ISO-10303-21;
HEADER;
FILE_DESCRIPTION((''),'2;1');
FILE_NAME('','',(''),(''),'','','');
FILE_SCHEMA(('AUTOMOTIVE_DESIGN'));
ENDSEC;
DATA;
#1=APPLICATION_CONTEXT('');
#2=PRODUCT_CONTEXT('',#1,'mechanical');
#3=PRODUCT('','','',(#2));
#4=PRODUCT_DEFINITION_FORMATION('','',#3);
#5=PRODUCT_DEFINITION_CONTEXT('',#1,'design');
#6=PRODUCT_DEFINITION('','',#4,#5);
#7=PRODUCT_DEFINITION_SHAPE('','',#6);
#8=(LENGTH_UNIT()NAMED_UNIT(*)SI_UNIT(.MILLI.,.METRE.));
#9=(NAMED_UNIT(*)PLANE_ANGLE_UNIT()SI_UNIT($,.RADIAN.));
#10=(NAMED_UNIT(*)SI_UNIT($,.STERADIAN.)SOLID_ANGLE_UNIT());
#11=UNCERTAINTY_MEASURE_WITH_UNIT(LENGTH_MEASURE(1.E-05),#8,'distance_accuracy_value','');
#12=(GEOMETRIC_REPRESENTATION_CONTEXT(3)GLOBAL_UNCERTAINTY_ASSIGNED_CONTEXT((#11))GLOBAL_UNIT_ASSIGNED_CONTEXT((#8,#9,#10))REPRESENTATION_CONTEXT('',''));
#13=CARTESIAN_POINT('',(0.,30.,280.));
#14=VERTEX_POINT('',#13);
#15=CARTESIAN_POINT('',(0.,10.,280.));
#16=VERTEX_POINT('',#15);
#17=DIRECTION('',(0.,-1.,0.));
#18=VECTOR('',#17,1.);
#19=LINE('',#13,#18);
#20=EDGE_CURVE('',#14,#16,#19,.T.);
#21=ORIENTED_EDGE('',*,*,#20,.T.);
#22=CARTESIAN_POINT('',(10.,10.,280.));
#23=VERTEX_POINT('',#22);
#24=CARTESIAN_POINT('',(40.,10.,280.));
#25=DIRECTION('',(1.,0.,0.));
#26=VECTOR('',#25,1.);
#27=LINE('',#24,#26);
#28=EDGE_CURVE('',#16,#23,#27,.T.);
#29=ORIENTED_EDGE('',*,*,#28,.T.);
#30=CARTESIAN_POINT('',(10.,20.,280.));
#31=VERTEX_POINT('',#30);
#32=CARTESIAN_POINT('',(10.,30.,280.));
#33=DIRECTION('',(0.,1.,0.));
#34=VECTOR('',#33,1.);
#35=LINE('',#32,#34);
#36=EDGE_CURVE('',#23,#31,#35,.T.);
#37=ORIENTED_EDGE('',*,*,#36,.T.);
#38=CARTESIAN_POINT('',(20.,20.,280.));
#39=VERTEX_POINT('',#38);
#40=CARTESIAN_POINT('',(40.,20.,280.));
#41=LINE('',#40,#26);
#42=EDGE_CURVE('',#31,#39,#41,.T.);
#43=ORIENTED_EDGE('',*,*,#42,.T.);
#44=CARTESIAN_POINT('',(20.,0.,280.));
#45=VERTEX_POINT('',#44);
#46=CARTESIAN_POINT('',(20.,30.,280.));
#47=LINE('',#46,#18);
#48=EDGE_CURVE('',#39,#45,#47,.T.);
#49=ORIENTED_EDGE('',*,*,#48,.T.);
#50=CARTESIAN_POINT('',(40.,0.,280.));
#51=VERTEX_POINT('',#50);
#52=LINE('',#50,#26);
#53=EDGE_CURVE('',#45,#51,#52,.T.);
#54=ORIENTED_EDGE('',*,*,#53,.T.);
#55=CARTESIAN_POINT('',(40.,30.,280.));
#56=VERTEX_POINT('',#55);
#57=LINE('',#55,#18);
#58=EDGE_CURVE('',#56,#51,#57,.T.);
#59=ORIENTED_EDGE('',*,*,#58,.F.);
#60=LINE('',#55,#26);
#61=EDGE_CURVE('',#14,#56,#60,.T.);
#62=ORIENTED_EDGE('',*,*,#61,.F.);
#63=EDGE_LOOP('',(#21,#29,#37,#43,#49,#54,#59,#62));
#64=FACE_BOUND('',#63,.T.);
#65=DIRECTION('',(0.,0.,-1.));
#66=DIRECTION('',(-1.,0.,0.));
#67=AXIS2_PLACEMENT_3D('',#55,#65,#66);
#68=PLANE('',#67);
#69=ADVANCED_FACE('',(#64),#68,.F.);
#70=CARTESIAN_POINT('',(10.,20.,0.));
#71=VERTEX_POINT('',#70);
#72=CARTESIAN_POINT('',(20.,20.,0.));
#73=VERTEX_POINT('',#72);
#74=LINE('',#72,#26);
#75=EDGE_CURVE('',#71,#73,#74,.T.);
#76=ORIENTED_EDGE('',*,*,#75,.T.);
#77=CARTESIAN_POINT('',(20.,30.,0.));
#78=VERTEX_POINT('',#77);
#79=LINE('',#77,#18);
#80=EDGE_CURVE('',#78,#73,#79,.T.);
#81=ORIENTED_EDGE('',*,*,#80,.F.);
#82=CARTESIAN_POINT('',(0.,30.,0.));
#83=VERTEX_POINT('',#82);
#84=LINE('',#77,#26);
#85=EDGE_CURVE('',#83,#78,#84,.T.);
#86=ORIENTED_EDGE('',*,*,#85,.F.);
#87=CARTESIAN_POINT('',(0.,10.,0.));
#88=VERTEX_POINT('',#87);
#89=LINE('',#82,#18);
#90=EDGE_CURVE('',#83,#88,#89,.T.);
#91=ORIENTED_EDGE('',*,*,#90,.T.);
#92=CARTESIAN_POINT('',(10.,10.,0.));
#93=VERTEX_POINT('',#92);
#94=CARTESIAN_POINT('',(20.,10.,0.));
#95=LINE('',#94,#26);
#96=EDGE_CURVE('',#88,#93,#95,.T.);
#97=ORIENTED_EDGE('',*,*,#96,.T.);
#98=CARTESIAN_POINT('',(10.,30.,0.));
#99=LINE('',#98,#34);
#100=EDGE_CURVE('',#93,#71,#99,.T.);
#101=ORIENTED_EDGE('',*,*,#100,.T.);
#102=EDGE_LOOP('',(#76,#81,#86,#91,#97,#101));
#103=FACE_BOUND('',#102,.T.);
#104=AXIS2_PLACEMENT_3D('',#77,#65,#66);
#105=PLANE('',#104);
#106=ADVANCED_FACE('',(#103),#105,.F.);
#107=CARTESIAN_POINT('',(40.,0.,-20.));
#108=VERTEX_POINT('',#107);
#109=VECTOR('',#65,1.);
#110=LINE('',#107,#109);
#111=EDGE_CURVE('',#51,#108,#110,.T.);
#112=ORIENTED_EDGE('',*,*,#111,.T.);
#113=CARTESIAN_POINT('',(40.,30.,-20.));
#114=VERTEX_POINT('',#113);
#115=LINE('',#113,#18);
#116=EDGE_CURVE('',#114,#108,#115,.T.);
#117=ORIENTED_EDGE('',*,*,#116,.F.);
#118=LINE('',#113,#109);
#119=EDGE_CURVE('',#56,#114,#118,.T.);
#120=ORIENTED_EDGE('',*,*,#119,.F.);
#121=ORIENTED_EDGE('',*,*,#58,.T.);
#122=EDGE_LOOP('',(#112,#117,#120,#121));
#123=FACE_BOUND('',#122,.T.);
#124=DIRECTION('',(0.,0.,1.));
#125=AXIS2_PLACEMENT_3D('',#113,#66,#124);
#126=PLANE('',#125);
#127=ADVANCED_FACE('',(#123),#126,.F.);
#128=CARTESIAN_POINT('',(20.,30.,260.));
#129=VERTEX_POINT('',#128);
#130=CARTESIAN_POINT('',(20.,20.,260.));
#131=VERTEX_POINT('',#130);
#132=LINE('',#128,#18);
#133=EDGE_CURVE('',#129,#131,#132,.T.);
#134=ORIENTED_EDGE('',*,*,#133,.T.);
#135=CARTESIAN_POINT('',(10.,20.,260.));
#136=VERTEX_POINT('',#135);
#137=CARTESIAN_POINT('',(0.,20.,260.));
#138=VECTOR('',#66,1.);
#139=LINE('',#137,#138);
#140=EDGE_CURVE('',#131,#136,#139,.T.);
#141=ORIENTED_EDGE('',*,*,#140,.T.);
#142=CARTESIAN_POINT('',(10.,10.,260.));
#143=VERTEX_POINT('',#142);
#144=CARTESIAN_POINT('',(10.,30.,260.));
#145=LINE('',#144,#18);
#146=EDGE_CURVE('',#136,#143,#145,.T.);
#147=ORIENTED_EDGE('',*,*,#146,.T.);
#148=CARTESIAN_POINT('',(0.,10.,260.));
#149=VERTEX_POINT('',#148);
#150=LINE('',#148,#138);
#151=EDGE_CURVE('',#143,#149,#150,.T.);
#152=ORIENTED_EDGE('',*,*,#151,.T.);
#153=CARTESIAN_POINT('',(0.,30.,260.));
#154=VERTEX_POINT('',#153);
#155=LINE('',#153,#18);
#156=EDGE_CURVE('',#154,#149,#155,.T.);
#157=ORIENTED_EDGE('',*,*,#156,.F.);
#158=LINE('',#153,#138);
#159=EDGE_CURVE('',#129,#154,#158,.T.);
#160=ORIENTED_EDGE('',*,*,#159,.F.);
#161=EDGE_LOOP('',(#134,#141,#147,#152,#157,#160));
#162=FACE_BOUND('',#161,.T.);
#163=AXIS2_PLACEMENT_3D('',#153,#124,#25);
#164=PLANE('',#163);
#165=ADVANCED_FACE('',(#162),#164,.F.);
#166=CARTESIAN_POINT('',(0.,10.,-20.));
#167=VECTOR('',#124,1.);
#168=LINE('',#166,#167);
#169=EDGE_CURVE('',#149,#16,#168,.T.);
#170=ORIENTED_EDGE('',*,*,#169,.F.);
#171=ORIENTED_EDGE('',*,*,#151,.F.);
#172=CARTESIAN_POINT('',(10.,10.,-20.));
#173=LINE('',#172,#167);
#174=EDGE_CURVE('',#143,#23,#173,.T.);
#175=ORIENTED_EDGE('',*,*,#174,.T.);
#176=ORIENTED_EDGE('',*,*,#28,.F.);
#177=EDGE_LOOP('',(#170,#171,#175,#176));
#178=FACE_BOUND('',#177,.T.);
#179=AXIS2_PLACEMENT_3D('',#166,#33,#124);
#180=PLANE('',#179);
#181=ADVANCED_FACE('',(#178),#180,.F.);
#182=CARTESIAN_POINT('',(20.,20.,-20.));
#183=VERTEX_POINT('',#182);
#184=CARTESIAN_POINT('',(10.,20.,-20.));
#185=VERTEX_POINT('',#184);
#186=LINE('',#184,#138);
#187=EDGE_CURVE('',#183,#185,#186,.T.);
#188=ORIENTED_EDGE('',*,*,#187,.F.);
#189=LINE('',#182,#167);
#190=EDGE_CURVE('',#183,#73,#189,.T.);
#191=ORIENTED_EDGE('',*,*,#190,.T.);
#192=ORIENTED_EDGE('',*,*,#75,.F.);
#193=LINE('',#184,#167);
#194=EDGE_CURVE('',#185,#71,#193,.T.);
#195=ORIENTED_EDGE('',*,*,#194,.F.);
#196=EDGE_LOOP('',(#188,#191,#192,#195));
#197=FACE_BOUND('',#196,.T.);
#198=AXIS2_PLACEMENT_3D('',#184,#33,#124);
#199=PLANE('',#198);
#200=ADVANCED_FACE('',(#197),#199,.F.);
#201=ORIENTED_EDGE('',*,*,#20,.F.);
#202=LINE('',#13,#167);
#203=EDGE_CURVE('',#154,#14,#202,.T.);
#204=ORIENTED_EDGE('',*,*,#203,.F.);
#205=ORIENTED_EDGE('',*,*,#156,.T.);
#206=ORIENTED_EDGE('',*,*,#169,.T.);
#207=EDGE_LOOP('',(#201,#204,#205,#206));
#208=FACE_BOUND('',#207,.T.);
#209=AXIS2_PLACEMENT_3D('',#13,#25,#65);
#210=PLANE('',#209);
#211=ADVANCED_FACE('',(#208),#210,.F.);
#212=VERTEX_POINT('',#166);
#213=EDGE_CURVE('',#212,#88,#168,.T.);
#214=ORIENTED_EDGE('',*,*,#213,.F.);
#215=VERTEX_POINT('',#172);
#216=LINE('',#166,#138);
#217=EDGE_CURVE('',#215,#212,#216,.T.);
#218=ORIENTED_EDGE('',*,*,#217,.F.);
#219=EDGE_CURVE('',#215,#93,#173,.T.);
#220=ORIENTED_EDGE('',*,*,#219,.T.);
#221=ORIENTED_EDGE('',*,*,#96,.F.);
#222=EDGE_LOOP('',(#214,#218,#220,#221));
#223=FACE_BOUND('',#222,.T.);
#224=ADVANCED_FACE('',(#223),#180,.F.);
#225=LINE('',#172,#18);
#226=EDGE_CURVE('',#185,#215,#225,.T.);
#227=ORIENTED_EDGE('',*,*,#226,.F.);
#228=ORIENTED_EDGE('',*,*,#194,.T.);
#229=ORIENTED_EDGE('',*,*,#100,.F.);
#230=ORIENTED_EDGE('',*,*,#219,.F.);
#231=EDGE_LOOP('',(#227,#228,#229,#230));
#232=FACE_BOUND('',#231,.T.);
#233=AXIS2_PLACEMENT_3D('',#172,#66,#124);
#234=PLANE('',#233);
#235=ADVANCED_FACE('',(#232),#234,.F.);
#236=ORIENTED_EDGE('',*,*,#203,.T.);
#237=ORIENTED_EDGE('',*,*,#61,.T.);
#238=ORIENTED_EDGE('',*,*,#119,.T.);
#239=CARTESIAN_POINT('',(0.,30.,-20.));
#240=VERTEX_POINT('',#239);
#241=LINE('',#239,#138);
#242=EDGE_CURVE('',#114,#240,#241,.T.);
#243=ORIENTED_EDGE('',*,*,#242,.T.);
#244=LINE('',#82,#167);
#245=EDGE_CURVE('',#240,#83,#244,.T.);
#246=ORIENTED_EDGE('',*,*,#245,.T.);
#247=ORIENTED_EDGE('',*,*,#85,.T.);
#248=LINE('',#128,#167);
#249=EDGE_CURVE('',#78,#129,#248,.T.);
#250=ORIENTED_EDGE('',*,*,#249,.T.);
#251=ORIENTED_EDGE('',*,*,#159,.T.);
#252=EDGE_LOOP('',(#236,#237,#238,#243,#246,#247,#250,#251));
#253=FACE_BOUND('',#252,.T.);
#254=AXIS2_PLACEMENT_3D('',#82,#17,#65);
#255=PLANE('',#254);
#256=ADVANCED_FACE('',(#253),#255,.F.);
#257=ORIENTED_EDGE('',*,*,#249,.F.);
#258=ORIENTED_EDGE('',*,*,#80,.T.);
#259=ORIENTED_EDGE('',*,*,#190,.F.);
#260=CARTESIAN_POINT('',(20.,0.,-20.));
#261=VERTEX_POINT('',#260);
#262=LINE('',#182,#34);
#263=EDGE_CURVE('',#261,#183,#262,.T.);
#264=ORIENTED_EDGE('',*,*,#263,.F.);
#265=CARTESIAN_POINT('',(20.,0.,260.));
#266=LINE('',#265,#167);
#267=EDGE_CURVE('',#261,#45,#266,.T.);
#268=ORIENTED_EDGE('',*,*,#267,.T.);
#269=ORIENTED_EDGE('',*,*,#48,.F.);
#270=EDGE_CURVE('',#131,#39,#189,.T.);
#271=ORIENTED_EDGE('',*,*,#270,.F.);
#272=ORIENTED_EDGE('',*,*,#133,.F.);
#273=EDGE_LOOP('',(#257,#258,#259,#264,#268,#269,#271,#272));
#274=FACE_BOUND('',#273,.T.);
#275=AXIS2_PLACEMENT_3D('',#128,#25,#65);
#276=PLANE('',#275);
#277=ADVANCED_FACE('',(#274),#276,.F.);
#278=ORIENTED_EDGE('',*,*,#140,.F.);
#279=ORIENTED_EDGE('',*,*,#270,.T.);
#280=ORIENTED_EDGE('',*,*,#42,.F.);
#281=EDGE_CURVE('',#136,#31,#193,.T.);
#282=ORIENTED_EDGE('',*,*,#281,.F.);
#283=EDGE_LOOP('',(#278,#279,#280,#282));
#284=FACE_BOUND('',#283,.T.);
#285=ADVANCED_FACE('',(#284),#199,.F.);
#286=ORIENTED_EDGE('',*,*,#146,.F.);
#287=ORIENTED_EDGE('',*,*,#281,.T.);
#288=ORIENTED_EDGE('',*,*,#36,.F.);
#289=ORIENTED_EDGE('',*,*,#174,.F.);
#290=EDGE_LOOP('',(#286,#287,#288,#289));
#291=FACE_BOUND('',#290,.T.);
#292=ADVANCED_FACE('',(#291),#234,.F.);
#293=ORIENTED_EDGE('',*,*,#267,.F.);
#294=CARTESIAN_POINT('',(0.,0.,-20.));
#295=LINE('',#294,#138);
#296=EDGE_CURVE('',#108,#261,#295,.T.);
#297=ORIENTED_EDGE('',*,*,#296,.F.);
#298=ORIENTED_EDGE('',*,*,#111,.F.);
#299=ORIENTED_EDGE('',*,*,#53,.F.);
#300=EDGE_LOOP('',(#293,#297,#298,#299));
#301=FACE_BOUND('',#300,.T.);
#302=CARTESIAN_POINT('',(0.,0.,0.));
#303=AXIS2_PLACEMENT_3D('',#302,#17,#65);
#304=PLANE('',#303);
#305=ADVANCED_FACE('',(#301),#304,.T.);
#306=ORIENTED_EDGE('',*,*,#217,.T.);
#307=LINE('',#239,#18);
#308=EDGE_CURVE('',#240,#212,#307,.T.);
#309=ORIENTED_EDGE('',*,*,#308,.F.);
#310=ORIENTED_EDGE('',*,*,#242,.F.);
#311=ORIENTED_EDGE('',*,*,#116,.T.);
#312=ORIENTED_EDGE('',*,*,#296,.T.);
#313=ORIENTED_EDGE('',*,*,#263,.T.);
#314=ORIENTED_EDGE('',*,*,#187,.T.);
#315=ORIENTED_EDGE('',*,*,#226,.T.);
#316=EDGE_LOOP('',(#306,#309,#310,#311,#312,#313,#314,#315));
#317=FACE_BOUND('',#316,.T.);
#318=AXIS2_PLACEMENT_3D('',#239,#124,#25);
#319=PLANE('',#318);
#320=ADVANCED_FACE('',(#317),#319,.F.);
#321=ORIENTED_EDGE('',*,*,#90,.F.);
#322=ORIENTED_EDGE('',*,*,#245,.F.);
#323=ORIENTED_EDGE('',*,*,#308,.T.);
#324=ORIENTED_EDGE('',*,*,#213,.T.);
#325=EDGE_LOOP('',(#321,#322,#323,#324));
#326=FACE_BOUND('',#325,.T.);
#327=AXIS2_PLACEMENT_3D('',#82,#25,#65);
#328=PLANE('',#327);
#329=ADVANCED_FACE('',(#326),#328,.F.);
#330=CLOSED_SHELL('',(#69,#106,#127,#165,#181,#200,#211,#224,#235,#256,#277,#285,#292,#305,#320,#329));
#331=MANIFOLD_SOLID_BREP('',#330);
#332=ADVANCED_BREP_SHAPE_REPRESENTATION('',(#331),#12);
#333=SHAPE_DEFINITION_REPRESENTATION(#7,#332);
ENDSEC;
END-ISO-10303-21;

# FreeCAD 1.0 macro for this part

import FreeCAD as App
import Part
import Sketcher
from FreeCAD import Vector


def add_polygon(sketch, points):
    """Adds a closed chain of lines whose ends are joined by coincident constraints."""
    first, n = sketch.GeometryCount, len(points)
    for a, b in zip(points, points[1:] + points[:1]):
        sketch.addGeometry(Part.LineSegment(App.Vector(*a, 0), App.Vector(*b, 0)), False)
    for i in range(n):
        sketch.addConstraint(Sketcher.Constraint("Coincident", first + i, 2, first + (i + 1) % n, 1))

doc = App.newDocument("Part")
body = doc.addObject("PartDesign::Body", "Body")

# Sketch on XZ plane
sketch1 = body.newObject("Sketcher::SketchObject", "Sketch")
sketch1.AttachmentSupport = (doc.getObject("XZ_Plane"), [""])
sketch1.MapMode = "FlatFace"
add_polygon(sketch1, [(0, -20), (0, 0), (20, 0), (20, 260), (0, 260), (0, 280), (40, 280), (40, -20)])  # lines 0-7
sketch1.addConstraint([
    Sketcher.Constraint("Vertical", 0),
    Sketcher.Constraint("Horizontal", 1),
    Sketcher.Constraint("Vertical", 2),
    Sketcher.Constraint("Horizontal", 3),
    Sketcher.Constraint("Vertical", 4),
    Sketcher.Constraint("Horizontal", 5),
    Sketcher.Constraint("Vertical", 6),
    Sketcher.Constraint("Horizontal", 7),
    Sketcher.Constraint("Coincident", 0, 2, -1, 1),
    Sketcher.Constraint("PointOnObject", 3, 2, -2),
    Sketcher.Constraint("Equal", 3, 0),
    Sketcher.Constraint("Equal", 0, 4),
    Sketcher.Constraint("DistanceX", 1, 1, 1, 2, 20.0),
    Sketcher.Constraint("DistanceX", 5, 1, 5, 2, 40.0),
    Sketcher.Constraint("DistanceY", 2, 1, 2, 2, 260.0),
])
pad1 = body.newObject("PartDesign::Pad", "Pad")
pad1.Profile = sketch1
pad1.Length = 30
pad1.Reversed = True

# Sketch on XY plane
sketch2 = body.newObject("Sketcher::SketchObject", "Sketch001")
sketch2.AttachmentSupport = (doc.getObject("XY_Plane"), [""])
sketch2.MapMode = "FlatFace"
sketch2.AttachmentOffset = App.Placement(Vector(0, 0, 280), App.Rotation())
add_polygon(sketch2, [(10, 10), (0, 10), (0, 0), (20, 0), (20, 20), (10, 20)])  # lines 0-5
sketch2.addConstraint([
    Sketcher.Constraint("Horizontal", 0),
    Sketcher.Constraint("Vertical", 1),
    Sketcher.Constraint("Horizontal", 2),
    Sketcher.Constraint("Vertical", 3),
    Sketcher.Constraint("Horizontal", 4),
    Sketcher.Constraint("Vertical", 5),
    Sketcher.Constraint("Coincident", 1, 2, -1, 1),
    Sketcher.Constraint("Equal", 0, 4),
    Sketcher.Constraint("Equal", 4, 1),
    Sketcher.Constraint("Equal", 2, 3),
    Sketcher.Constraint("DistanceX", 0, 2, 0, 1, 10.0),
])
pocket1 = body.newObject("PartDesign::Pocket", "Pocket")
pocket1.Profile = sketch2
pocket1.Type = "ThroughAll"
pocket1.Midplane = True

doc.recompute()
